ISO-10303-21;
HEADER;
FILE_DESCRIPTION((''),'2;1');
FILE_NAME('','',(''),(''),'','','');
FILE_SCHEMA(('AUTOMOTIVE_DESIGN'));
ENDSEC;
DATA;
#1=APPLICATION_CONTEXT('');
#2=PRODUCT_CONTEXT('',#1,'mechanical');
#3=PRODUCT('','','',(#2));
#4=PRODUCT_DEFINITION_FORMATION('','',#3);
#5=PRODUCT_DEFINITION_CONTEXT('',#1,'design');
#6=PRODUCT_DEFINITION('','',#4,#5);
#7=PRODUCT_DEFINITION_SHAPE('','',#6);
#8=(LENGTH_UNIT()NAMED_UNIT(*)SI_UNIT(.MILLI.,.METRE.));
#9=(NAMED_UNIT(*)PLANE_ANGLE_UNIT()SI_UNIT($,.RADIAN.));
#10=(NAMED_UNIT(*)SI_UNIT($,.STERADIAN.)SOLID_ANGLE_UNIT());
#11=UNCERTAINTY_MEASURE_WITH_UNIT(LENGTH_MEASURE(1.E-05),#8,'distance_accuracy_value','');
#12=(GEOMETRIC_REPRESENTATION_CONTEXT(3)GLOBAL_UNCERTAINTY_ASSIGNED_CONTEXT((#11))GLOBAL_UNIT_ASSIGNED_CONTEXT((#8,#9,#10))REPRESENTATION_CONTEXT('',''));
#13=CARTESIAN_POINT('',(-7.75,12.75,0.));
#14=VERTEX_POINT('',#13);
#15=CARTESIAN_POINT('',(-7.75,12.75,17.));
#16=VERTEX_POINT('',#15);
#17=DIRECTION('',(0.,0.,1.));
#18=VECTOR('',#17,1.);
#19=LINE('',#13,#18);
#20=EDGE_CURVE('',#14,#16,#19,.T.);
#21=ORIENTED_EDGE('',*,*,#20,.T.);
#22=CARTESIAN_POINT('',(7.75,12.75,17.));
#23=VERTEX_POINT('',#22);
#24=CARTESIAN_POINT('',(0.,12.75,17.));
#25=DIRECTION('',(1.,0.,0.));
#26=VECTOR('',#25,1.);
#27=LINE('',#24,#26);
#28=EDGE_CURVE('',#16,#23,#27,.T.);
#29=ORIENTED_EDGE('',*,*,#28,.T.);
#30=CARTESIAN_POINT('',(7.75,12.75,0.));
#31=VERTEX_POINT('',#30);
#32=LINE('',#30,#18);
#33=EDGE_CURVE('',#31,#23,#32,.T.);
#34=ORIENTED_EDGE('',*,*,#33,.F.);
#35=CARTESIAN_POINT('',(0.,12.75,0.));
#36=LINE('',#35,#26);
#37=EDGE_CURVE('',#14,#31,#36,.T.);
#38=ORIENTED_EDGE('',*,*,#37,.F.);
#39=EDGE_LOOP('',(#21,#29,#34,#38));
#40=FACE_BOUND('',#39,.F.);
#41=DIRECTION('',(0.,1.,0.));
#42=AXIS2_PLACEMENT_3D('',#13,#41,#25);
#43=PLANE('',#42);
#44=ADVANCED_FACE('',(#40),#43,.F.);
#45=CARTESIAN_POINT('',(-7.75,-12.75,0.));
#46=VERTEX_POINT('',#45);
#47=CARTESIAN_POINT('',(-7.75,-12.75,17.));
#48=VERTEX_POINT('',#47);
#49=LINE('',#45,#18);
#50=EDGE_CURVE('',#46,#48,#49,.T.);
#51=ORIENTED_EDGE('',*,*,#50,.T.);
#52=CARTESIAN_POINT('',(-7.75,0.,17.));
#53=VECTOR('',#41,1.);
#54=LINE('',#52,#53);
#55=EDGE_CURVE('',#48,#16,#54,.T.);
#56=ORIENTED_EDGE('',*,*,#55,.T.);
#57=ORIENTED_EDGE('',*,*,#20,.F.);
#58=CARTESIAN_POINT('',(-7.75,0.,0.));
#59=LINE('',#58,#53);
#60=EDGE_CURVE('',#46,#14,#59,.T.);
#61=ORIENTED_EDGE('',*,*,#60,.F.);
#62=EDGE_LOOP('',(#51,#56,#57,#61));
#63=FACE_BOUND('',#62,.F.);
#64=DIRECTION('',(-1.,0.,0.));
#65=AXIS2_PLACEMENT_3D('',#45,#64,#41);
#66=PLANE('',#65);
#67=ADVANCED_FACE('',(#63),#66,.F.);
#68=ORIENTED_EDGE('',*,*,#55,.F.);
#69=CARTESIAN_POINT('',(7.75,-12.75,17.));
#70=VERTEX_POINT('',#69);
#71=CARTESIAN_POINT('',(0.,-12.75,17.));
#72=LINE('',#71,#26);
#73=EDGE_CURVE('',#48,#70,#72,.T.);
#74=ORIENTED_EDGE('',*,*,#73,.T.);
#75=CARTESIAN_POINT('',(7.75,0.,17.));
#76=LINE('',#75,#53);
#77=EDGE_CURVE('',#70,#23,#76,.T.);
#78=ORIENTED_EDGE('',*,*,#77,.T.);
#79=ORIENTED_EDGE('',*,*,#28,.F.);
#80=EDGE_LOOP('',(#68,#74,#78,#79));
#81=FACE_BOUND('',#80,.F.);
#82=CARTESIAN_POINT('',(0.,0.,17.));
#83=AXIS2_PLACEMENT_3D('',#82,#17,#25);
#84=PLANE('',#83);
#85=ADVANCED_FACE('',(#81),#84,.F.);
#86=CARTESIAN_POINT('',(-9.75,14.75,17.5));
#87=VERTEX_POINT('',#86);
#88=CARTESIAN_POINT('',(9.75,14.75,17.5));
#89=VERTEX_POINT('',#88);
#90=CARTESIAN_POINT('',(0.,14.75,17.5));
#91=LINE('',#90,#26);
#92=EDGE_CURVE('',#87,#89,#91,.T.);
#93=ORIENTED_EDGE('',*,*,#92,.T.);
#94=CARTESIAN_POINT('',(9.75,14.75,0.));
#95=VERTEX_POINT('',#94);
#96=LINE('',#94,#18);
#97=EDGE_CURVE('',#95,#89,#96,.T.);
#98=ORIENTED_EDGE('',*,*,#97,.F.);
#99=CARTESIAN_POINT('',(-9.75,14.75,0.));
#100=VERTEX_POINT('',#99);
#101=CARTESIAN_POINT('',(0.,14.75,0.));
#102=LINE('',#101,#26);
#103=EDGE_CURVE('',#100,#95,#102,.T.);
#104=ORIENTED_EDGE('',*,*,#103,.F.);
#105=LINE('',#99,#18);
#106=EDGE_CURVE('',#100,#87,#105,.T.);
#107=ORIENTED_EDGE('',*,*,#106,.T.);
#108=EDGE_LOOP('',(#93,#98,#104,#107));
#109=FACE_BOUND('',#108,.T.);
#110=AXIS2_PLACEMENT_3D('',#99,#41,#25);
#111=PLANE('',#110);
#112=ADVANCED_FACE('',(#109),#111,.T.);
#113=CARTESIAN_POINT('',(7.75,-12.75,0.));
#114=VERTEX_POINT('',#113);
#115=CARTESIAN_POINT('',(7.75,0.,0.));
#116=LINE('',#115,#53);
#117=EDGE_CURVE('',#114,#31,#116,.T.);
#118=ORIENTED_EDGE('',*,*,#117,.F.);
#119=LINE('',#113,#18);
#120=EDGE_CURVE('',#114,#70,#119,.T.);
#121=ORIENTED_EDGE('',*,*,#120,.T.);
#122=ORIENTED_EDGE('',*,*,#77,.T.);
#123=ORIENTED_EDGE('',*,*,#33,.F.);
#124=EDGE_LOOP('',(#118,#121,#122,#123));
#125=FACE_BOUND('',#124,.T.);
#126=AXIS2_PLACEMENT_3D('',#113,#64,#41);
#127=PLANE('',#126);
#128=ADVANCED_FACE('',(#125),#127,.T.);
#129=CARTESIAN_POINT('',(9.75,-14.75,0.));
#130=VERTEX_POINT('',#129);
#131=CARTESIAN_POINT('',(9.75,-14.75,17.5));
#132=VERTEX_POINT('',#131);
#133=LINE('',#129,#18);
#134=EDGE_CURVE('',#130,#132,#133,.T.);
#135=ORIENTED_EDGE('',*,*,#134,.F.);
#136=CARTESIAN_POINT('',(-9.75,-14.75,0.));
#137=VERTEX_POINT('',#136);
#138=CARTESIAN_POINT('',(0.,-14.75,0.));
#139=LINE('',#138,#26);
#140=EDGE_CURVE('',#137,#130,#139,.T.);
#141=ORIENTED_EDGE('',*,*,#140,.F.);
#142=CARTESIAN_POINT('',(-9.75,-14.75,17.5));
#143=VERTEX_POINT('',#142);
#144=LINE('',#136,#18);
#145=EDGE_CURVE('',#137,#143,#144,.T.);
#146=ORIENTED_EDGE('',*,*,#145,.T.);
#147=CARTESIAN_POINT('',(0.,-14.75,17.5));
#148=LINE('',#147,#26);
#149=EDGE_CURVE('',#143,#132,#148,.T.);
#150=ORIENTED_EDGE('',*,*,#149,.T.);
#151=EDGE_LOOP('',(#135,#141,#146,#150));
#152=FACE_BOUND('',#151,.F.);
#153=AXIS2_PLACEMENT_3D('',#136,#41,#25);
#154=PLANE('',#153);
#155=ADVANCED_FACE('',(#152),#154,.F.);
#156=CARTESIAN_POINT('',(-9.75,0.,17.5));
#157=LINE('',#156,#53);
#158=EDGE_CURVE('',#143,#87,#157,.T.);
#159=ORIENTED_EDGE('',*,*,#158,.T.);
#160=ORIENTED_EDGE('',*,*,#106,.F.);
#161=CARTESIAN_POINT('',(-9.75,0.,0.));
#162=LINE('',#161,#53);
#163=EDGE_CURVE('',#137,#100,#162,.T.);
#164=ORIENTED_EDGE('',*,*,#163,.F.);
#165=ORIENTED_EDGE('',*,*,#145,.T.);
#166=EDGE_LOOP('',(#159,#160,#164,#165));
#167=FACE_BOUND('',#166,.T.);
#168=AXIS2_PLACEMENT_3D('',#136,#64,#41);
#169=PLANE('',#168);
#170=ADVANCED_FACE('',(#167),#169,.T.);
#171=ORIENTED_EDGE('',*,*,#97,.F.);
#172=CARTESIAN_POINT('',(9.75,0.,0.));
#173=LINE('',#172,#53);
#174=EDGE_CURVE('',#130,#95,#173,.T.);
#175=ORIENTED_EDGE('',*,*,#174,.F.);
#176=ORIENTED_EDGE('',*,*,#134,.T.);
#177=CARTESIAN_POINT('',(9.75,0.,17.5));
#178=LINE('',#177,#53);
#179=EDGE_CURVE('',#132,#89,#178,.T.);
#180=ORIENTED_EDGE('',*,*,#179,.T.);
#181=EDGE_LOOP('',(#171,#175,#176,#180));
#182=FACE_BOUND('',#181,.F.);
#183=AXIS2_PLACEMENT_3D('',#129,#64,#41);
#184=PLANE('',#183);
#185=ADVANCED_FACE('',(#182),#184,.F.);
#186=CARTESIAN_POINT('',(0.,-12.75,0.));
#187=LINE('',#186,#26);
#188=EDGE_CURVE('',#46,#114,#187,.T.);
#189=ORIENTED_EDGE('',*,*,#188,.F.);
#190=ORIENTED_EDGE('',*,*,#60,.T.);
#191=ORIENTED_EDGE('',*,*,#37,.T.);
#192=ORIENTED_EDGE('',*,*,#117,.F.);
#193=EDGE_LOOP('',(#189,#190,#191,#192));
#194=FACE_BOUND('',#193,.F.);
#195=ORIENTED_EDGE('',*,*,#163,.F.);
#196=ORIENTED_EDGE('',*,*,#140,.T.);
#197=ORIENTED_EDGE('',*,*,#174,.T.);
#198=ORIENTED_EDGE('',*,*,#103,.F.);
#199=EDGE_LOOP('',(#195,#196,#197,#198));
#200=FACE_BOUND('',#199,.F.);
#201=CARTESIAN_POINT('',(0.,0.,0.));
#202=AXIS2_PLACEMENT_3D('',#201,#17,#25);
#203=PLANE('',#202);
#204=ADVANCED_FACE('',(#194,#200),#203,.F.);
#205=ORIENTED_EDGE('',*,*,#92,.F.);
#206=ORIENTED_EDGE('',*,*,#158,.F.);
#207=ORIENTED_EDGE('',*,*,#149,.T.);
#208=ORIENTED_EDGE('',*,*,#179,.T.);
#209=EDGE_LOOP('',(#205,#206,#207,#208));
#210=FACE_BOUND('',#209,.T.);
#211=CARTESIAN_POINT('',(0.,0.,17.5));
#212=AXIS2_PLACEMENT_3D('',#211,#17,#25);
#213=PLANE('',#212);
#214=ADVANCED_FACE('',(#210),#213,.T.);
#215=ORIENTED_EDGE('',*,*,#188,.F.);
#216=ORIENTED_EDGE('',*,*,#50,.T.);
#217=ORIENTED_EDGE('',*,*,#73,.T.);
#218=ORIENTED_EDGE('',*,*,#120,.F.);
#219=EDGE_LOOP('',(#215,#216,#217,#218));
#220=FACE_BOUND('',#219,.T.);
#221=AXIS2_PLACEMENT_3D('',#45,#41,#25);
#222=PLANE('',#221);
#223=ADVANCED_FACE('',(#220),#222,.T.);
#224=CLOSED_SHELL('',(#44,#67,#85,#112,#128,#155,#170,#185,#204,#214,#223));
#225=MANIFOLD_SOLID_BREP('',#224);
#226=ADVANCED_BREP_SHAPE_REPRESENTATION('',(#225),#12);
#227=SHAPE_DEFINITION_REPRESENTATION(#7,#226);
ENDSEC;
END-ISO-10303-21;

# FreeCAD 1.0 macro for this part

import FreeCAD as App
import Part
import Sketcher

V = App.Vector


def add_polygon(sketch, points):
    """Adds a closed chain of lines whose ends are joined by coincident constraints."""
    first, n = sketch.GeometryCount, len(points)
    for a, b in zip(points, points[1:] + points[:1]):
        sketch.addGeometry(Part.LineSegment(App.Vector(*a, 0), App.Vector(*b, 0)), False)
    for i in range(n):
        sketch.addConstraint(Sketcher.Constraint("Coincident", first + i, 2, first + (i + 1) % n, 1))

doc = App.newDocument("Part")
body = doc.addObject("PartDesign::Body", "Body")

# Sketch on XY plane
sketch1 = body.newObject("Sketcher::SketchObject", "Sketch")
sketch1.AttachmentSupport = (doc.getObject("XY_Plane"), [""])
sketch1.MapMode = "FlatFace"
add_polygon(sketch1, [(-10, 15), (-10, -15), (10, -15), (10, 15)])  # lines 0-3
sketch1.addConstraint([
    Sketcher.Constraint("Vertical", 0),
    Sketcher.Constraint("Horizontal", 1),
    Sketcher.Constraint("Vertical", 2),
    Sketcher.Constraint("Horizontal", 3),
    Sketcher.Constraint("Symmetric", 0, 2, 2, 2, -1, 1),
    Sketcher.Constraint("DistanceX", 1, 1, 1, 2, 19.5),
    Sketcher.Constraint("DistanceY", 0, 2, 0, 1, 29.5),
])
pad1 = body.newObject("PartDesign::Pad", "Pad")
pad1.Profile = sketch1
pad1.Length = 17.5

# Sketch on XY plane
sketch2 = body.newObject("Sketcher::SketchObject", "Sketch001")
sketch2.AttachmentSupport = (doc.getObject("XY_Plane"), [""])
sketch2.MapMode = "FlatFace"
add_polygon(sketch2, [(-8, 13), (-8, -13), (8, -13), (8, 13)])  # lines 0-3
sketch2.addConstraint([
    Sketcher.Constraint("Vertical", 0),
    Sketcher.Constraint("Horizontal", 1),
    Sketcher.Constraint("Vertical", 2),
    Sketcher.Constraint("Horizontal", 3),
    Sketcher.Constraint("Symmetric", 0, 2, 2, 2, -1, 1),
    Sketcher.Constraint("DistanceX", 1, 1, 1, 2, 15.5),
    Sketcher.Constraint("DistanceY", 0, 2, 0, 1, 25.5),
])
pocket1 = body.newObject("PartDesign::Pocket", "Pocket")
pocket1.Profile = sketch2
pocket1.Length = 17
pocket1.Reversed = True

doc.recompute()
